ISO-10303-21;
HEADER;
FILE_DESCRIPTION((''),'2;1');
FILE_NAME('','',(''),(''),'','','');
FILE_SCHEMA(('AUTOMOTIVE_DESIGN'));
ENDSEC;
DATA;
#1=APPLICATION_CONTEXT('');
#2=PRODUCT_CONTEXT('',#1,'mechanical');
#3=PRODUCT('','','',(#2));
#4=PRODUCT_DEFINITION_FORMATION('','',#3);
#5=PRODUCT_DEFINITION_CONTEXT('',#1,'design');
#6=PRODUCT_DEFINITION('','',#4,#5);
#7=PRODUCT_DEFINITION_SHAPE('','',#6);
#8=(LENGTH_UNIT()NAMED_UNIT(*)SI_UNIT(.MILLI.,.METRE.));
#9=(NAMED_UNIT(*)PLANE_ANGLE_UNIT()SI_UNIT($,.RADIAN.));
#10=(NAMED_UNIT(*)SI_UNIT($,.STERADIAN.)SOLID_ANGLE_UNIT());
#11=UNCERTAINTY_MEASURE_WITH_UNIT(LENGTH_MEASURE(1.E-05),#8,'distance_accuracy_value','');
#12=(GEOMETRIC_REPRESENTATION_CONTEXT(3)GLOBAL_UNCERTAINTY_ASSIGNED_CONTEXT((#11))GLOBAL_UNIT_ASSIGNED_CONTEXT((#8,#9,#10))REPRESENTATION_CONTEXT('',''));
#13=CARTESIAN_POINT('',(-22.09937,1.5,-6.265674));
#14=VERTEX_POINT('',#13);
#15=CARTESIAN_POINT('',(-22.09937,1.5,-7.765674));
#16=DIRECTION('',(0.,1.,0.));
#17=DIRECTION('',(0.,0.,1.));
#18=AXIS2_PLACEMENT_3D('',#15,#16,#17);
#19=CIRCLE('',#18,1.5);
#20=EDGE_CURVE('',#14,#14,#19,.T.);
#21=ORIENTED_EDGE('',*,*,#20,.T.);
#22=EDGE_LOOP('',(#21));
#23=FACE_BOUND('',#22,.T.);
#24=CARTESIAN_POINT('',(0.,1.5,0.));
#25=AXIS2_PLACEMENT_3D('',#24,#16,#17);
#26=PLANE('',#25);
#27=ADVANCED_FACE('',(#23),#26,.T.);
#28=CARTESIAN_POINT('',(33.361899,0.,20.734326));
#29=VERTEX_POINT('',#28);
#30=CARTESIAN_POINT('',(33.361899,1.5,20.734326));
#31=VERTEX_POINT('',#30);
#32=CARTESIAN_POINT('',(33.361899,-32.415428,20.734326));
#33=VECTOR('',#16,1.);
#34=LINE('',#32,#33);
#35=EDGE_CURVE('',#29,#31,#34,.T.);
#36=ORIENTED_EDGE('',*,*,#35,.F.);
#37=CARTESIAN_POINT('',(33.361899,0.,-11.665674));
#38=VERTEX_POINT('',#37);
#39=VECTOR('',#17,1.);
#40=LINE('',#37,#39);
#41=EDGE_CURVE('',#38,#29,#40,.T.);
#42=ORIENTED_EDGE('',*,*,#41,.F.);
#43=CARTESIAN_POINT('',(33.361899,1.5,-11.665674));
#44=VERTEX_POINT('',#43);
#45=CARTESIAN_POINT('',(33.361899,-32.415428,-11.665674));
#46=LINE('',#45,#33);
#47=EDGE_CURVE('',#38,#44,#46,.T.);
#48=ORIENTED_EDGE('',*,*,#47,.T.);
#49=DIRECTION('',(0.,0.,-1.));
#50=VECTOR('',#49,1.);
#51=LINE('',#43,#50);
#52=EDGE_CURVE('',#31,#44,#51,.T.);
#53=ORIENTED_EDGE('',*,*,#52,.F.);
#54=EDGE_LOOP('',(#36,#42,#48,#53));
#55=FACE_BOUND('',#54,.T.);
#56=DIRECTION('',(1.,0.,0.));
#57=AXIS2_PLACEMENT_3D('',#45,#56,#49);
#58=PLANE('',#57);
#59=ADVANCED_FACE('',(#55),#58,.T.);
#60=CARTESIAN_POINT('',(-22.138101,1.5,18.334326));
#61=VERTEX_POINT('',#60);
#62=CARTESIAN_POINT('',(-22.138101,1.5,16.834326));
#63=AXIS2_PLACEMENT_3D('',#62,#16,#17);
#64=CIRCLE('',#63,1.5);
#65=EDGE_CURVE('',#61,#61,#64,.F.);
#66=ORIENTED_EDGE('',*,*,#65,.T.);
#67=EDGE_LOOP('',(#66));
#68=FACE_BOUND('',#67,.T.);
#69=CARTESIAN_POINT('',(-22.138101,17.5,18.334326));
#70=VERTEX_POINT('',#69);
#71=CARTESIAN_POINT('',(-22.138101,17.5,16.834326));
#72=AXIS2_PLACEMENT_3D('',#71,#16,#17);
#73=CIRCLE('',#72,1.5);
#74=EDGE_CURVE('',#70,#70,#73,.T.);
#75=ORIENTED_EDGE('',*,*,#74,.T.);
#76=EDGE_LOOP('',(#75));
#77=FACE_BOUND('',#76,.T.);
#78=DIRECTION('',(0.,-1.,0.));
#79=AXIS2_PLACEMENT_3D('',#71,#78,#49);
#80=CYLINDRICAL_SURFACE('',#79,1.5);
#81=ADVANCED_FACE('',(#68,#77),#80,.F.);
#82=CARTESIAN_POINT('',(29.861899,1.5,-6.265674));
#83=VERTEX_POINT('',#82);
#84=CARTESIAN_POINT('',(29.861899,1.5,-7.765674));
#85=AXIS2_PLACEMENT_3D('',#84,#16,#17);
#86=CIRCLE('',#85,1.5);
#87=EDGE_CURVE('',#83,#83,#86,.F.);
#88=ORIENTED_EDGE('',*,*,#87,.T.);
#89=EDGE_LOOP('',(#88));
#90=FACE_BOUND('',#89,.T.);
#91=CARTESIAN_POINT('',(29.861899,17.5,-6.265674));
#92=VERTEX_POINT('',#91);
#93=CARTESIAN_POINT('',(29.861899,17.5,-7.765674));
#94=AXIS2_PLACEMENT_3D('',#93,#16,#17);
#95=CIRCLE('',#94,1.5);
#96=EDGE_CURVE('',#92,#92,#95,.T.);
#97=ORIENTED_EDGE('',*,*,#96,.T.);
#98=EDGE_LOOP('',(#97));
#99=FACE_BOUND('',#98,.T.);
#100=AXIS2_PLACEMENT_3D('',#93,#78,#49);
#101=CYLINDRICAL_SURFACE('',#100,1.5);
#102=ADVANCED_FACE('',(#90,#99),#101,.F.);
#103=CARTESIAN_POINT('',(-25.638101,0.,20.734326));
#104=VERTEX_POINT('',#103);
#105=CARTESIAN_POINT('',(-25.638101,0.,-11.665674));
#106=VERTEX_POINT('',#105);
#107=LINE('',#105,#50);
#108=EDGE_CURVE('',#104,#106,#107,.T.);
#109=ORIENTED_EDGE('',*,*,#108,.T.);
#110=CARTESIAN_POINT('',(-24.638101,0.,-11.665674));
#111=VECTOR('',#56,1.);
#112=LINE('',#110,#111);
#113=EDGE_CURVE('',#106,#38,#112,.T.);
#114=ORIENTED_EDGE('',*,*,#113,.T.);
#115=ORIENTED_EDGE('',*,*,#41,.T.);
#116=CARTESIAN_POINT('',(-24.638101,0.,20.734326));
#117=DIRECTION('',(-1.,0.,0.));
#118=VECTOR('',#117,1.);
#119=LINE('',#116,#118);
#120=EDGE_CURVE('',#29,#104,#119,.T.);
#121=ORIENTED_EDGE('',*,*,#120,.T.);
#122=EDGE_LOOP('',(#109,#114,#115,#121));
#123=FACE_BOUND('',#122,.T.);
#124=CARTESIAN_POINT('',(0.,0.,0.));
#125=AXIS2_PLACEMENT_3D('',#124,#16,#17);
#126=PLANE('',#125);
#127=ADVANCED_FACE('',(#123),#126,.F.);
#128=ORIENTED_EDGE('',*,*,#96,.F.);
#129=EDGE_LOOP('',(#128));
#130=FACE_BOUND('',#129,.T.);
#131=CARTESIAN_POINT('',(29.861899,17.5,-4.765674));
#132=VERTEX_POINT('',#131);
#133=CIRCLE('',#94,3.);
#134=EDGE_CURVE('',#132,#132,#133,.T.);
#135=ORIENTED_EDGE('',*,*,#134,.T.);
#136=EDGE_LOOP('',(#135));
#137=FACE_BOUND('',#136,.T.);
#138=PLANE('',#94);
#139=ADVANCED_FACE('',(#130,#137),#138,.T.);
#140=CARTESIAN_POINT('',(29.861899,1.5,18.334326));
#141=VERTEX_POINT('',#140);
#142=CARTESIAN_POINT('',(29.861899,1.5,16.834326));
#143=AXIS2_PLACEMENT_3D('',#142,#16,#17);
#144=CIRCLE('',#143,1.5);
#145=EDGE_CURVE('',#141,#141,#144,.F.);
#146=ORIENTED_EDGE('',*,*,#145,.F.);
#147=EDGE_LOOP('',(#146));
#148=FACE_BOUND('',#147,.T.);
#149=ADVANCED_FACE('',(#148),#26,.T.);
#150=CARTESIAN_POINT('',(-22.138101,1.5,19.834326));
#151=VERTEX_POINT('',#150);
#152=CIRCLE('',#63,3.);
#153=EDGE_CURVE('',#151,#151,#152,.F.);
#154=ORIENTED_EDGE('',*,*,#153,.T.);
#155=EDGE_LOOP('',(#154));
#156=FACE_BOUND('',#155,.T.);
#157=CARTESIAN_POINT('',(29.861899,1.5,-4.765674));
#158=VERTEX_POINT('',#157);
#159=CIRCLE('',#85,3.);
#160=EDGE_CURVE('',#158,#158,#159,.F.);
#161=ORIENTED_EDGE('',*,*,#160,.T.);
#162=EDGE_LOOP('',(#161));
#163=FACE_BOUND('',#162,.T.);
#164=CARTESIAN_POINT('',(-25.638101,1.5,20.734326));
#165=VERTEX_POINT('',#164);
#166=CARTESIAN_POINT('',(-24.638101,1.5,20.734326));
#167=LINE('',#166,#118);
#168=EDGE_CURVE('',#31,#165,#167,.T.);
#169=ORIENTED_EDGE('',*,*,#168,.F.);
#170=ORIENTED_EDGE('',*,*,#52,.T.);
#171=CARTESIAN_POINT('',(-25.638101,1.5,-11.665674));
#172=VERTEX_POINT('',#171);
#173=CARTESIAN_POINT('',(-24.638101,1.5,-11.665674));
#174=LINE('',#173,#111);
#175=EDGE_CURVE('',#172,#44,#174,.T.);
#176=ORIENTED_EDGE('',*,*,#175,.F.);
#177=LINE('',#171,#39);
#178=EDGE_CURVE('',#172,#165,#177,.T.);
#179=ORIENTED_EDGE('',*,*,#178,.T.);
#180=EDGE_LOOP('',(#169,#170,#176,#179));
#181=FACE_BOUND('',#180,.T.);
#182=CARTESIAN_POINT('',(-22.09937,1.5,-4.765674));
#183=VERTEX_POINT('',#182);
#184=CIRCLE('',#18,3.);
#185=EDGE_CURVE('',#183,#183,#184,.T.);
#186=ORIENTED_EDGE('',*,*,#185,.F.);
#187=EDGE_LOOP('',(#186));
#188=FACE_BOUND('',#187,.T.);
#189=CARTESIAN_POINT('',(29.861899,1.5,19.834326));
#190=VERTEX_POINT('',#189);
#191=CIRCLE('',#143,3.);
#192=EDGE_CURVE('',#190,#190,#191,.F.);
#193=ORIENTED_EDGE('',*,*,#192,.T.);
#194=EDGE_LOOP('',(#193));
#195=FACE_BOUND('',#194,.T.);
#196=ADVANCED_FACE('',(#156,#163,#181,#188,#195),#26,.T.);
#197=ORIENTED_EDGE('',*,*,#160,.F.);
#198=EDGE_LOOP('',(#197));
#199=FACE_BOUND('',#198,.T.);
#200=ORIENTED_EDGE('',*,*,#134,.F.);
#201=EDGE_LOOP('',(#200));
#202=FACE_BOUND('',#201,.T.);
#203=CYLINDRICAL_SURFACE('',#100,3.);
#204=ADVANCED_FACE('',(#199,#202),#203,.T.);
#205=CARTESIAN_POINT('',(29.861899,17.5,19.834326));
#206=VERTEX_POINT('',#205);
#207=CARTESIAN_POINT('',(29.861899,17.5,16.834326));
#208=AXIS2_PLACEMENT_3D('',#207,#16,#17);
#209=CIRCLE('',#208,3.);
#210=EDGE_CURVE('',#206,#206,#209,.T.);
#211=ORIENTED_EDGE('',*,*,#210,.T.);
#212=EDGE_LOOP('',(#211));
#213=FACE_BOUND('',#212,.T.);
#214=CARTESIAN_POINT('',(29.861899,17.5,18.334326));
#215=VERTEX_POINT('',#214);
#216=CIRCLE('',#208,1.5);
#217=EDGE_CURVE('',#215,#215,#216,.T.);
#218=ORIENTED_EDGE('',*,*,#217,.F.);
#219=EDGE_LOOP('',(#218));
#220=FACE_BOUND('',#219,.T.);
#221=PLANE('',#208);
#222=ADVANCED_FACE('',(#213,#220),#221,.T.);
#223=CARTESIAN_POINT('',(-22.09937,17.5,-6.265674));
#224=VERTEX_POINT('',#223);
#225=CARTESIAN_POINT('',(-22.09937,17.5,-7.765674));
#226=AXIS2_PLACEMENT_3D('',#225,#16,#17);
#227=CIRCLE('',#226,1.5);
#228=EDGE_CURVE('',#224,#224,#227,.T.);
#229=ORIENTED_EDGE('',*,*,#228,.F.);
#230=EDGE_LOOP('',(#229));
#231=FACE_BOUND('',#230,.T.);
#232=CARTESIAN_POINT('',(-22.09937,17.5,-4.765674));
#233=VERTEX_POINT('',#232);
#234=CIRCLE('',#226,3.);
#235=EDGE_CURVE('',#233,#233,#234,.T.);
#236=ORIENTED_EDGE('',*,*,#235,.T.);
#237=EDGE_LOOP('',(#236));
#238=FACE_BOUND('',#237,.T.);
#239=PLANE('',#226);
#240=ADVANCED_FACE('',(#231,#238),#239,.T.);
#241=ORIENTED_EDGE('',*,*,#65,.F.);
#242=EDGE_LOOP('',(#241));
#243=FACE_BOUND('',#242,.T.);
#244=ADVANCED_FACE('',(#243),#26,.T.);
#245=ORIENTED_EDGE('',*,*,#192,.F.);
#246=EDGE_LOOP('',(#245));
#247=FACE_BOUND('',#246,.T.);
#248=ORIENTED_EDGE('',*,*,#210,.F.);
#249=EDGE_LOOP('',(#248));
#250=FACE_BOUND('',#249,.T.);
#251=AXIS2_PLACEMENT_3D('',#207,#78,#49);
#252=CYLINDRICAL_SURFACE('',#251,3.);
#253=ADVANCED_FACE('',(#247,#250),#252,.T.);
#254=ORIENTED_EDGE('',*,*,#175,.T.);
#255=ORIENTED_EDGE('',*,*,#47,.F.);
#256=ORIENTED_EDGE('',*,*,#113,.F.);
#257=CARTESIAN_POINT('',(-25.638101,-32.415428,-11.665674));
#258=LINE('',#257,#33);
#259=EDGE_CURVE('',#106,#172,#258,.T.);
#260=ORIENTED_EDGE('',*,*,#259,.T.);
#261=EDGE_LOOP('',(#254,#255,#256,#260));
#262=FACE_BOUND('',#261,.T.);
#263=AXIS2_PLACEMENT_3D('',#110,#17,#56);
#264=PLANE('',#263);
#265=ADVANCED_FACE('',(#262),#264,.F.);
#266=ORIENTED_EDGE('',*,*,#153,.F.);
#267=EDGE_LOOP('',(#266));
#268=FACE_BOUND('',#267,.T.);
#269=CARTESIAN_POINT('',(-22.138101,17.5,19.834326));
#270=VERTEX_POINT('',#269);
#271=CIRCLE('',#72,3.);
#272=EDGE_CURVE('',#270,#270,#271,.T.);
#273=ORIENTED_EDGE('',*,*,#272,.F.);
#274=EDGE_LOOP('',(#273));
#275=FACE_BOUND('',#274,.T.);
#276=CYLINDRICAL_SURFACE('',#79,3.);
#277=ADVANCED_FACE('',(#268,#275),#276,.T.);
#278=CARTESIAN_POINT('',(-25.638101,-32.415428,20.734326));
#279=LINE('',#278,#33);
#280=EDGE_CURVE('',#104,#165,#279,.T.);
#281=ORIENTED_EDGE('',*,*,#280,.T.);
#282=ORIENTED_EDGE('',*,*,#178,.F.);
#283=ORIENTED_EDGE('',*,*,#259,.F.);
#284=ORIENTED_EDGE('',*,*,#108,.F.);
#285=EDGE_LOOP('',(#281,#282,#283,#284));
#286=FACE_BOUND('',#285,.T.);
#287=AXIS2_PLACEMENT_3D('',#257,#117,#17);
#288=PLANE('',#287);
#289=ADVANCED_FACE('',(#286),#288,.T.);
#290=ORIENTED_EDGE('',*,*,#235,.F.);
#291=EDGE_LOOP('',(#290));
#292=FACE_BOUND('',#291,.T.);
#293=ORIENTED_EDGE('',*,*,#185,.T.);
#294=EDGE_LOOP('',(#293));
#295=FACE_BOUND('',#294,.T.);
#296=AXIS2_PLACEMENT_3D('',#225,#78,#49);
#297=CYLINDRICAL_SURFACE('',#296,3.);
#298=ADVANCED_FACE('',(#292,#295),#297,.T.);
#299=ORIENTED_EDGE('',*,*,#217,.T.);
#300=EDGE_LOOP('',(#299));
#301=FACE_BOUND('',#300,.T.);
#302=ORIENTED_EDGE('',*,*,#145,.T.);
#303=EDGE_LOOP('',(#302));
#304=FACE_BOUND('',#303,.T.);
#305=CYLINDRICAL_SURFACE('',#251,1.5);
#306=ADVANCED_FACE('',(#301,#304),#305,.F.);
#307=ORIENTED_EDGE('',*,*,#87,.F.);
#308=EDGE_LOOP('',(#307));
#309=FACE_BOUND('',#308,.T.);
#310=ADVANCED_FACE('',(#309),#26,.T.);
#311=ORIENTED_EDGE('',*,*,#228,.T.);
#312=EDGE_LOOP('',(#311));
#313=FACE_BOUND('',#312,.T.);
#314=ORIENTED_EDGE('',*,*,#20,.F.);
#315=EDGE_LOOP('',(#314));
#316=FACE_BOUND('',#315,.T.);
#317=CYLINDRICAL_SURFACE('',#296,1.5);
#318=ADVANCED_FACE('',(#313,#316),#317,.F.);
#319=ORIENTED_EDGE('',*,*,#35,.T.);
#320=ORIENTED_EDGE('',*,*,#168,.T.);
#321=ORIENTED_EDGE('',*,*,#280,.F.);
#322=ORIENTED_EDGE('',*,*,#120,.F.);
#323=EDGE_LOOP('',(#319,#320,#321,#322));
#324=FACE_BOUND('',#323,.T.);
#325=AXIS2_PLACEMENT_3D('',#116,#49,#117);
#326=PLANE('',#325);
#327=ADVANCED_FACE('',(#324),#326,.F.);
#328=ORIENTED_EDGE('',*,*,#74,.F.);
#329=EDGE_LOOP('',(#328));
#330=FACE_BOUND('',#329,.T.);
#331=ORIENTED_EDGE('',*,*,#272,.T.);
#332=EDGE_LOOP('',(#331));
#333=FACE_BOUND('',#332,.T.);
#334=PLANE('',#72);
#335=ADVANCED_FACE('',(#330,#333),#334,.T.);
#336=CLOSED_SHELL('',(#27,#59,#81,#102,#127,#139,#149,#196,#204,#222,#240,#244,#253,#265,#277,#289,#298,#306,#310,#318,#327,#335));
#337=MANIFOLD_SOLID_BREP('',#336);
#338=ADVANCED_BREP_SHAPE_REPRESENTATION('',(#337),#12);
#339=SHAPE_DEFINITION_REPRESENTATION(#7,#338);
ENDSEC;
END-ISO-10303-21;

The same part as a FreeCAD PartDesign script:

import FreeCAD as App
import Part
import Sketcher

V = App.Vector


def add_polygon(sketch, points):
    """Adds a closed chain of lines whose ends are joined by coincident constraints."""
    first, n = sketch.GeometryCount, len(points)
    for a, b in zip(points, points[1:] + points[:1]):
        sketch.addGeometry(Part.LineSegment(App.Vector(*a, 0), App.Vector(*b, 0)), False)
    for i in range(n):
        sketch.addConstraint(Sketcher.Constraint("Coincident", first + i, 2, first + (i + 1) % n, 1))

doc = App.newDocument("Part")
body = doc.addObject("PartDesign::Body", "Body")

sketch1 = body.newObject("Sketcher::SketchObject", "Sketch")
sketch1.AttachmentSupport = (doc.getObject("XZ_Plane"), [""])
sketch1.MapMode = "FlatFace"
add_polygon(sketch1, [(-25, -16), (-25, 25), (32, 25), (32, -16)])
sketch1.addConstraint([
    Sketcher.Constraint("Vertical", 0),
    Sketcher.Constraint("Horizontal", 1),
    Sketcher.Constraint("Vertical", 2),
    Sketcher.Constraint("Horizontal", 3),
    Sketcher.Constraint("DistanceX", 1, 1, 1, 2, 57.0),
    Sketcher.Constraint("DistanceY", 0, 1, 0, 2, 40.4),
    Sketcher.Constraint("DistanceX", 0, 2, -1, 1, 24.638101),
    Sketcher.Constraint("DistanceY", -1, 1, 0, 2, 24.734326),
])
pad1 = body.newObject("PartDesign::Pad", "Pad")
pad1.Profile = sketch1
pad1.Length = 1.5
pad1.Reversed = True

sketch2 = body.newObject("Sketcher::SketchObject", "Sketch001")
sketch2.AttachmentSupport = (doc.getObject("XZ_Plane"), [""])
sketch2.MapMode = "FlatFace"
sketch2.AttachmentOffset = App.Placement(V(0, 0, -1.5), App.Rotation())
sketch2.addGeometry([
    Part.Circle(V(-22.1, -7.8, 0), V(0, 0, 1), 3),
    Part.Circle(V(-22.1, -7.8, 0), V(0, 0, 1), 1.5),
    Part.Circle(V(-22.1, 16.8, 0), V(0, 0, 1), 3),
    Part.Circle(V(-22.1, 16.8, 0), V(0, 0, 1), 1.5),
    Part.Circle(V(29.9, 16.8, 0), V(0, 0, 1), 3),
    Part.Circle(V(29.9, 16.8, 0), V(0, 0, 1), 1.5),
    Part.Circle(V(29.9, -7.8, 0), V(0, 0, 1), 3),
    Part.Circle(V(29.9, -7.8, 0), V(0, 0, 1), 1.5),
], False)
sketch2.addConstraint([
    Sketcher.Constraint("Coincident", 1, 3, 0, 3),
    Sketcher.Constraint("Coincident", 3, 3, 2, 3),
    Sketcher.Constraint("Coincident", 5, 3, 4, 3),
    Sketcher.Constraint("Coincident", 7, 3, 6, 3),
    Sketcher.Constraint("Equal", 0, 2),
    Sketcher.Constraint("Equal", 1, 3),
    Sketcher.Constraint("Equal", 2, 4),
    Sketcher.Constraint("Equal", 3, 5),
    Sketcher.Constraint("Equal", 4, 6),
    Sketcher.Constraint("Equal", 5, 7),
    Sketcher.Constraint("Horizontal", 3, 3, 4, 3),
    Sketcher.Constraint("Horizontal", 1, 3, 6, 3),
    Sketcher.Constraint("Vertical", 5, 3, 6, 3),
    Sketcher.Constraint("Diameter", 0, 6.0),
    Sketcher.Constraint("Diameter", 1, 3.0),
    Sketcher.Constraint("DistanceX", 2, 3, 4, 3, 52.0),
    Sketcher.Constraint("DistanceY", 0, 3, 2, 3, 24.6),
    Sketcher.Constraint("DistanceX", 2, 3, -1, 1, 22.138101),
    Sketcher.Constraint("DistanceX", 0, 3, -1, 1, 22.09937),
    Sketcher.Constraint("DistanceY", 0, 3, -1, 1, 7.765674),
])
pad2 = body.newObject("PartDesign::Pad", "Pad001")
pad2.Profile = sketch2
pad2.Length = 16
pad2.Reversed = True

sketch3 = body.newObject("Sketcher::SketchObject", "Sketch002")
sketch3.AttachmentSupport = (doc.getObject("XZ_Plane"), [""])
sketch3.MapMode = "FlatFace"
sketch3.AttachmentOffset = App.Placement(V(0, 0, -1.5), App.Rotation())
add_polygon(sketch3, [(-24.6, -15.7), (-24.6, -11.7), (32.4, -11.7), (32.4, -15.7)])
add_polygon(sketch3, [(-24.6, 20.7), (-24.6, 24.7), (32.4, 24.7), (32.4, 20.7)])
sketch3.addConstraint([
    Sketcher.Constraint("Vertical", 0),
    Sketcher.Constraint("Horizontal", 1),
    Sketcher.Constraint("Vertical", 2),
    Sketcher.Constraint("Horizontal", 3),
    Sketcher.Constraint("Vertical", 4),
    Sketcher.Constraint("Horizontal", 5),
    Sketcher.Constraint("Vertical", 6),
    Sketcher.Constraint("Horizontal", 7),
    Sketcher.Constraint("Vertical", 3, 2, 4, 2),
    Sketcher.Constraint("Vertical", 2, 2, 5, 2),
    Sketcher.Constraint("Equal", 2, 4),
    Sketcher.Constraint("DistanceX", 1, 1, 1, 2, 57.0),
    Sketcher.Constraint("DistanceY", 0, 1, 0, 2, 4.0),
    Sketcher.Constraint("DistanceY", 0, 2, 4, 2, 36.4),
    Sketcher.Constraint("DistanceX", 0, 2, -1, 1, 24.638101),
    Sketcher.Constraint("DistanceY", 0, 2, -1, 1, 11.665674),
])
pocket1 = body.newObject("PartDesign::Pocket", "Pocket")
pocket1.Profile = sketch3
pocket1.Type = "ThroughAll"
pocket1.Reversed = True

sketch4 = body.newObject("Sketcher::SketchObject", "Sketch003")
sketch4.AttachmentSupport = (doc.getObject("XZ_Plane"), [""])
sketch4.MapMode = "FlatFace"
sketch4.AttachmentOffset = App.Placement(V(0, 0, -1.5), App.Rotation())
add_polygon(sketch4, [(-25.6, -11.7), (-25.6, 20.7), (-24.6, 20.7), (-24.6, -11.7)])
add_polygon(sketch4, [(32.4, -11.7), (32.4, 20.7), (33.4, 20.7), (33.4, -11.7)])
sketch4.addConstraint([
    Sketcher.Constraint("Vertical", 0),
    Sketcher.Constraint("Horizontal", 1),
    Sketcher.Constraint("Vertical", 2),
    Sketcher.Constraint("Horizontal", 3),
    Sketcher.Constraint("Vertical", 4),
    Sketcher.Constraint("Horizontal", 5),
    Sketcher.Constraint("Vertical", 6),
    Sketcher.Constraint("Horizontal", 7),
    Sketcher.Constraint("Horizontal", 1, 2, 4, 2),
    Sketcher.Constraint("Horizontal", 3, 2, 6, 2),
    Sketcher.Constraint("Equal", 3, 5),
    Sketcher.Constraint("DistanceX", 1, 1, 1, 2, 1.0),
    Sketcher.Constraint("DistanceY", 0, 1, 0, 2, 32.4),
    Sketcher.Constraint("DistanceX", 1, 2, 4, 2, 57.0),
    Sketcher.Constraint("DistanceX", 0, 2, -1, 1, 25.638101),
    Sketcher.Constraint("DistanceY", -1, 1, 0, 2, 20.734326),
])
pad3 = body.newObject("PartDesign::Pad", "Pad002")
pad3.Profile = sketch4
pad3.Length = 1.5

doc.recompute()
